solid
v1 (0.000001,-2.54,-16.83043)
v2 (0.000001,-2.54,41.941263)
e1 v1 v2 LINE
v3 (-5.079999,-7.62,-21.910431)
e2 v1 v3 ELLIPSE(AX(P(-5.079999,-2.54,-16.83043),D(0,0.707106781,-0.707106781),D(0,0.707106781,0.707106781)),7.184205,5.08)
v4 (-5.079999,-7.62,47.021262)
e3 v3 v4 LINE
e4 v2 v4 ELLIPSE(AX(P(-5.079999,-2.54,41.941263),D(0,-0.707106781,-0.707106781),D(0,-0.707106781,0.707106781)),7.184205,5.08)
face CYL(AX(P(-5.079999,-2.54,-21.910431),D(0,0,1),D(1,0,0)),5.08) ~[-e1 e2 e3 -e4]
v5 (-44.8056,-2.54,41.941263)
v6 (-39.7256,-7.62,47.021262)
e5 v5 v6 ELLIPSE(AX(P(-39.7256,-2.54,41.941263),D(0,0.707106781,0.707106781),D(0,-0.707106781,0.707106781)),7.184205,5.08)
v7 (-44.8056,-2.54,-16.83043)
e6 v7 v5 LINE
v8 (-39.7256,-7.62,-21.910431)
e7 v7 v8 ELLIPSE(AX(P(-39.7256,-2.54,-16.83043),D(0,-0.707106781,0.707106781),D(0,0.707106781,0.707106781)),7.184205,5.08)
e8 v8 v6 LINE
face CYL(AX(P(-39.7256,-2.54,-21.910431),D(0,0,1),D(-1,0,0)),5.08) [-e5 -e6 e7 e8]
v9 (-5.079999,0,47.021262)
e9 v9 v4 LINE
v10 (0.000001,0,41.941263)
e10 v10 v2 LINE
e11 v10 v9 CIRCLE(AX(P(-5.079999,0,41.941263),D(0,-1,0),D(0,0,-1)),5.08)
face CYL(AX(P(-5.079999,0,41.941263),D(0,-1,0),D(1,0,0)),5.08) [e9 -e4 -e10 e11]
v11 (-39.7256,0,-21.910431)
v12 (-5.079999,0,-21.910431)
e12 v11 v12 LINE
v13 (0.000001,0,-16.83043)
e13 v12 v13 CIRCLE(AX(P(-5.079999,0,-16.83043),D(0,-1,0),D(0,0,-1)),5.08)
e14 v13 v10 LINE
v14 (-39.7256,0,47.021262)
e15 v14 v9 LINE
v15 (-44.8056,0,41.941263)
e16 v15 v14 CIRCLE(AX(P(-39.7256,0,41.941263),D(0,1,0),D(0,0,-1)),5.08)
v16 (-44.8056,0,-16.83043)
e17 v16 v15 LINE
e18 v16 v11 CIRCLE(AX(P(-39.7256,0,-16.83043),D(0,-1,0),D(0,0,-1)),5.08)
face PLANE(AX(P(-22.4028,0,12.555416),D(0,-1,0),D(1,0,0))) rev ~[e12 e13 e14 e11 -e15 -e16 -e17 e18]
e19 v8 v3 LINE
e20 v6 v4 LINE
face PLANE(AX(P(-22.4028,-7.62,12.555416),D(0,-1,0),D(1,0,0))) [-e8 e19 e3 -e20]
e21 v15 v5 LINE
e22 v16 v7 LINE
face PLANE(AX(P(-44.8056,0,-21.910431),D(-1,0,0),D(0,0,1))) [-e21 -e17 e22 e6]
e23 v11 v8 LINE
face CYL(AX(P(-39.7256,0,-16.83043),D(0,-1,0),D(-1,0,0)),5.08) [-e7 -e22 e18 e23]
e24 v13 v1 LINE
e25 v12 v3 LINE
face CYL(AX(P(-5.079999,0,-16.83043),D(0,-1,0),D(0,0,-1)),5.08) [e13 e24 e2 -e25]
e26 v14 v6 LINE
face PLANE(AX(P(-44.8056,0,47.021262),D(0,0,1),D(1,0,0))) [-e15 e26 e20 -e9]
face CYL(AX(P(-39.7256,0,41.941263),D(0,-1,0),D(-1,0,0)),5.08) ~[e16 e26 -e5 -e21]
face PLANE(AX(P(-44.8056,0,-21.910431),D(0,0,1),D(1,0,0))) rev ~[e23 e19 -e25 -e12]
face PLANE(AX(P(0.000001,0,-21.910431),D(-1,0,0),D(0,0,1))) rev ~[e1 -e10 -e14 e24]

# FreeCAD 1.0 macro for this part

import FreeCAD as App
import Part
import Sketcher
from FreeCAD import Vector
Q = App.Units.Quantity


def edges_at(feature, points):
    """Names of the edges that pass closest to the given points."""
    edges = feature.Shape.Edges
    near = lambda p: min(range(len(edges)), key=lambda i: edges[i].distToShape(Part.Vertex(*p))[0])
    return sorted({f"Edge{near(p) + 1}" for p in points})

doc = App.newDocument("Part")
body = doc.addObject("PartDesign::Body", "Body")

# Sketch on XZ plane
sketch1 = body.newObject("Sketcher::SketchObject", "Sketch")
sketch1.AttachmentSupport = (doc.getObject("XZ_Plane"), [""])
sketch1.MapMode = "FlatFace"
sketch1.addGeometry([
    Part.LineSegment(Vector(-45, 47, 0), Vector(-45, -22, 0)),
    Part.LineSegment(Vector(-45, -22, 0), Vector(0, -22, 0)),
    Part.LineSegment(Vector(0, -22, 0), Vector(0, 47, 0)),
    Part.LineSegment(Vector(0, 47, 0), Vector(-45, 47, 0)),
], False)
sketch1.addConstraint([
    Sketcher.Constraint("Coincident", 0, 2, 1, 1),
    Sketcher.Constraint("Coincident", 1, 2, 2, 1),
    Sketcher.Constraint("Coincident", 2, 2, 3, 1),
    Sketcher.Constraint("Coincident", 3, 2, 0, 1),
    Sketcher.Constraint("Vertical", 0),
    Sketcher.Constraint("Horizontal", 1),
    Sketcher.Constraint("Vertical", 2),
    Sketcher.Constraint("Horizontal", 3),
    Sketcher.Constraint("PointOnObject", 1, 2, -2),
    Sketcher.Constraint("DistanceX", 1, 1, 1, 2, Q("1.764 in")),
    Sketcher.Constraint("DistanceY", 0, 2, 0, 1, Q("68.931693 mm")),
    Sketcher.Constraint("DistanceY", 0, 2, -1, 1, Q("21.910431 mm")),
])
pad1 = body.newObject("PartDesign::Pad", "Pad")
pad1.Profile = sketch1
pad1.Length = Q("0.3 in")
doc.recompute()

fillet = body.newObject("PartDesign::Fillet", "Fillet")
fillet.Base = (pad1, edges_at(pad1, [
    (0, -7.62, 12.555),
    (-44.806, -7.62, 12.555),
    (0, -3.81, 47.021),
    (-44.806, -3.81, 47.021),
    (-44.806, -3.81, -21.91),
    (0, -3.81, -21.91),
]))
fillet.Radius = Q("0.2 in")

doc.recompute()
